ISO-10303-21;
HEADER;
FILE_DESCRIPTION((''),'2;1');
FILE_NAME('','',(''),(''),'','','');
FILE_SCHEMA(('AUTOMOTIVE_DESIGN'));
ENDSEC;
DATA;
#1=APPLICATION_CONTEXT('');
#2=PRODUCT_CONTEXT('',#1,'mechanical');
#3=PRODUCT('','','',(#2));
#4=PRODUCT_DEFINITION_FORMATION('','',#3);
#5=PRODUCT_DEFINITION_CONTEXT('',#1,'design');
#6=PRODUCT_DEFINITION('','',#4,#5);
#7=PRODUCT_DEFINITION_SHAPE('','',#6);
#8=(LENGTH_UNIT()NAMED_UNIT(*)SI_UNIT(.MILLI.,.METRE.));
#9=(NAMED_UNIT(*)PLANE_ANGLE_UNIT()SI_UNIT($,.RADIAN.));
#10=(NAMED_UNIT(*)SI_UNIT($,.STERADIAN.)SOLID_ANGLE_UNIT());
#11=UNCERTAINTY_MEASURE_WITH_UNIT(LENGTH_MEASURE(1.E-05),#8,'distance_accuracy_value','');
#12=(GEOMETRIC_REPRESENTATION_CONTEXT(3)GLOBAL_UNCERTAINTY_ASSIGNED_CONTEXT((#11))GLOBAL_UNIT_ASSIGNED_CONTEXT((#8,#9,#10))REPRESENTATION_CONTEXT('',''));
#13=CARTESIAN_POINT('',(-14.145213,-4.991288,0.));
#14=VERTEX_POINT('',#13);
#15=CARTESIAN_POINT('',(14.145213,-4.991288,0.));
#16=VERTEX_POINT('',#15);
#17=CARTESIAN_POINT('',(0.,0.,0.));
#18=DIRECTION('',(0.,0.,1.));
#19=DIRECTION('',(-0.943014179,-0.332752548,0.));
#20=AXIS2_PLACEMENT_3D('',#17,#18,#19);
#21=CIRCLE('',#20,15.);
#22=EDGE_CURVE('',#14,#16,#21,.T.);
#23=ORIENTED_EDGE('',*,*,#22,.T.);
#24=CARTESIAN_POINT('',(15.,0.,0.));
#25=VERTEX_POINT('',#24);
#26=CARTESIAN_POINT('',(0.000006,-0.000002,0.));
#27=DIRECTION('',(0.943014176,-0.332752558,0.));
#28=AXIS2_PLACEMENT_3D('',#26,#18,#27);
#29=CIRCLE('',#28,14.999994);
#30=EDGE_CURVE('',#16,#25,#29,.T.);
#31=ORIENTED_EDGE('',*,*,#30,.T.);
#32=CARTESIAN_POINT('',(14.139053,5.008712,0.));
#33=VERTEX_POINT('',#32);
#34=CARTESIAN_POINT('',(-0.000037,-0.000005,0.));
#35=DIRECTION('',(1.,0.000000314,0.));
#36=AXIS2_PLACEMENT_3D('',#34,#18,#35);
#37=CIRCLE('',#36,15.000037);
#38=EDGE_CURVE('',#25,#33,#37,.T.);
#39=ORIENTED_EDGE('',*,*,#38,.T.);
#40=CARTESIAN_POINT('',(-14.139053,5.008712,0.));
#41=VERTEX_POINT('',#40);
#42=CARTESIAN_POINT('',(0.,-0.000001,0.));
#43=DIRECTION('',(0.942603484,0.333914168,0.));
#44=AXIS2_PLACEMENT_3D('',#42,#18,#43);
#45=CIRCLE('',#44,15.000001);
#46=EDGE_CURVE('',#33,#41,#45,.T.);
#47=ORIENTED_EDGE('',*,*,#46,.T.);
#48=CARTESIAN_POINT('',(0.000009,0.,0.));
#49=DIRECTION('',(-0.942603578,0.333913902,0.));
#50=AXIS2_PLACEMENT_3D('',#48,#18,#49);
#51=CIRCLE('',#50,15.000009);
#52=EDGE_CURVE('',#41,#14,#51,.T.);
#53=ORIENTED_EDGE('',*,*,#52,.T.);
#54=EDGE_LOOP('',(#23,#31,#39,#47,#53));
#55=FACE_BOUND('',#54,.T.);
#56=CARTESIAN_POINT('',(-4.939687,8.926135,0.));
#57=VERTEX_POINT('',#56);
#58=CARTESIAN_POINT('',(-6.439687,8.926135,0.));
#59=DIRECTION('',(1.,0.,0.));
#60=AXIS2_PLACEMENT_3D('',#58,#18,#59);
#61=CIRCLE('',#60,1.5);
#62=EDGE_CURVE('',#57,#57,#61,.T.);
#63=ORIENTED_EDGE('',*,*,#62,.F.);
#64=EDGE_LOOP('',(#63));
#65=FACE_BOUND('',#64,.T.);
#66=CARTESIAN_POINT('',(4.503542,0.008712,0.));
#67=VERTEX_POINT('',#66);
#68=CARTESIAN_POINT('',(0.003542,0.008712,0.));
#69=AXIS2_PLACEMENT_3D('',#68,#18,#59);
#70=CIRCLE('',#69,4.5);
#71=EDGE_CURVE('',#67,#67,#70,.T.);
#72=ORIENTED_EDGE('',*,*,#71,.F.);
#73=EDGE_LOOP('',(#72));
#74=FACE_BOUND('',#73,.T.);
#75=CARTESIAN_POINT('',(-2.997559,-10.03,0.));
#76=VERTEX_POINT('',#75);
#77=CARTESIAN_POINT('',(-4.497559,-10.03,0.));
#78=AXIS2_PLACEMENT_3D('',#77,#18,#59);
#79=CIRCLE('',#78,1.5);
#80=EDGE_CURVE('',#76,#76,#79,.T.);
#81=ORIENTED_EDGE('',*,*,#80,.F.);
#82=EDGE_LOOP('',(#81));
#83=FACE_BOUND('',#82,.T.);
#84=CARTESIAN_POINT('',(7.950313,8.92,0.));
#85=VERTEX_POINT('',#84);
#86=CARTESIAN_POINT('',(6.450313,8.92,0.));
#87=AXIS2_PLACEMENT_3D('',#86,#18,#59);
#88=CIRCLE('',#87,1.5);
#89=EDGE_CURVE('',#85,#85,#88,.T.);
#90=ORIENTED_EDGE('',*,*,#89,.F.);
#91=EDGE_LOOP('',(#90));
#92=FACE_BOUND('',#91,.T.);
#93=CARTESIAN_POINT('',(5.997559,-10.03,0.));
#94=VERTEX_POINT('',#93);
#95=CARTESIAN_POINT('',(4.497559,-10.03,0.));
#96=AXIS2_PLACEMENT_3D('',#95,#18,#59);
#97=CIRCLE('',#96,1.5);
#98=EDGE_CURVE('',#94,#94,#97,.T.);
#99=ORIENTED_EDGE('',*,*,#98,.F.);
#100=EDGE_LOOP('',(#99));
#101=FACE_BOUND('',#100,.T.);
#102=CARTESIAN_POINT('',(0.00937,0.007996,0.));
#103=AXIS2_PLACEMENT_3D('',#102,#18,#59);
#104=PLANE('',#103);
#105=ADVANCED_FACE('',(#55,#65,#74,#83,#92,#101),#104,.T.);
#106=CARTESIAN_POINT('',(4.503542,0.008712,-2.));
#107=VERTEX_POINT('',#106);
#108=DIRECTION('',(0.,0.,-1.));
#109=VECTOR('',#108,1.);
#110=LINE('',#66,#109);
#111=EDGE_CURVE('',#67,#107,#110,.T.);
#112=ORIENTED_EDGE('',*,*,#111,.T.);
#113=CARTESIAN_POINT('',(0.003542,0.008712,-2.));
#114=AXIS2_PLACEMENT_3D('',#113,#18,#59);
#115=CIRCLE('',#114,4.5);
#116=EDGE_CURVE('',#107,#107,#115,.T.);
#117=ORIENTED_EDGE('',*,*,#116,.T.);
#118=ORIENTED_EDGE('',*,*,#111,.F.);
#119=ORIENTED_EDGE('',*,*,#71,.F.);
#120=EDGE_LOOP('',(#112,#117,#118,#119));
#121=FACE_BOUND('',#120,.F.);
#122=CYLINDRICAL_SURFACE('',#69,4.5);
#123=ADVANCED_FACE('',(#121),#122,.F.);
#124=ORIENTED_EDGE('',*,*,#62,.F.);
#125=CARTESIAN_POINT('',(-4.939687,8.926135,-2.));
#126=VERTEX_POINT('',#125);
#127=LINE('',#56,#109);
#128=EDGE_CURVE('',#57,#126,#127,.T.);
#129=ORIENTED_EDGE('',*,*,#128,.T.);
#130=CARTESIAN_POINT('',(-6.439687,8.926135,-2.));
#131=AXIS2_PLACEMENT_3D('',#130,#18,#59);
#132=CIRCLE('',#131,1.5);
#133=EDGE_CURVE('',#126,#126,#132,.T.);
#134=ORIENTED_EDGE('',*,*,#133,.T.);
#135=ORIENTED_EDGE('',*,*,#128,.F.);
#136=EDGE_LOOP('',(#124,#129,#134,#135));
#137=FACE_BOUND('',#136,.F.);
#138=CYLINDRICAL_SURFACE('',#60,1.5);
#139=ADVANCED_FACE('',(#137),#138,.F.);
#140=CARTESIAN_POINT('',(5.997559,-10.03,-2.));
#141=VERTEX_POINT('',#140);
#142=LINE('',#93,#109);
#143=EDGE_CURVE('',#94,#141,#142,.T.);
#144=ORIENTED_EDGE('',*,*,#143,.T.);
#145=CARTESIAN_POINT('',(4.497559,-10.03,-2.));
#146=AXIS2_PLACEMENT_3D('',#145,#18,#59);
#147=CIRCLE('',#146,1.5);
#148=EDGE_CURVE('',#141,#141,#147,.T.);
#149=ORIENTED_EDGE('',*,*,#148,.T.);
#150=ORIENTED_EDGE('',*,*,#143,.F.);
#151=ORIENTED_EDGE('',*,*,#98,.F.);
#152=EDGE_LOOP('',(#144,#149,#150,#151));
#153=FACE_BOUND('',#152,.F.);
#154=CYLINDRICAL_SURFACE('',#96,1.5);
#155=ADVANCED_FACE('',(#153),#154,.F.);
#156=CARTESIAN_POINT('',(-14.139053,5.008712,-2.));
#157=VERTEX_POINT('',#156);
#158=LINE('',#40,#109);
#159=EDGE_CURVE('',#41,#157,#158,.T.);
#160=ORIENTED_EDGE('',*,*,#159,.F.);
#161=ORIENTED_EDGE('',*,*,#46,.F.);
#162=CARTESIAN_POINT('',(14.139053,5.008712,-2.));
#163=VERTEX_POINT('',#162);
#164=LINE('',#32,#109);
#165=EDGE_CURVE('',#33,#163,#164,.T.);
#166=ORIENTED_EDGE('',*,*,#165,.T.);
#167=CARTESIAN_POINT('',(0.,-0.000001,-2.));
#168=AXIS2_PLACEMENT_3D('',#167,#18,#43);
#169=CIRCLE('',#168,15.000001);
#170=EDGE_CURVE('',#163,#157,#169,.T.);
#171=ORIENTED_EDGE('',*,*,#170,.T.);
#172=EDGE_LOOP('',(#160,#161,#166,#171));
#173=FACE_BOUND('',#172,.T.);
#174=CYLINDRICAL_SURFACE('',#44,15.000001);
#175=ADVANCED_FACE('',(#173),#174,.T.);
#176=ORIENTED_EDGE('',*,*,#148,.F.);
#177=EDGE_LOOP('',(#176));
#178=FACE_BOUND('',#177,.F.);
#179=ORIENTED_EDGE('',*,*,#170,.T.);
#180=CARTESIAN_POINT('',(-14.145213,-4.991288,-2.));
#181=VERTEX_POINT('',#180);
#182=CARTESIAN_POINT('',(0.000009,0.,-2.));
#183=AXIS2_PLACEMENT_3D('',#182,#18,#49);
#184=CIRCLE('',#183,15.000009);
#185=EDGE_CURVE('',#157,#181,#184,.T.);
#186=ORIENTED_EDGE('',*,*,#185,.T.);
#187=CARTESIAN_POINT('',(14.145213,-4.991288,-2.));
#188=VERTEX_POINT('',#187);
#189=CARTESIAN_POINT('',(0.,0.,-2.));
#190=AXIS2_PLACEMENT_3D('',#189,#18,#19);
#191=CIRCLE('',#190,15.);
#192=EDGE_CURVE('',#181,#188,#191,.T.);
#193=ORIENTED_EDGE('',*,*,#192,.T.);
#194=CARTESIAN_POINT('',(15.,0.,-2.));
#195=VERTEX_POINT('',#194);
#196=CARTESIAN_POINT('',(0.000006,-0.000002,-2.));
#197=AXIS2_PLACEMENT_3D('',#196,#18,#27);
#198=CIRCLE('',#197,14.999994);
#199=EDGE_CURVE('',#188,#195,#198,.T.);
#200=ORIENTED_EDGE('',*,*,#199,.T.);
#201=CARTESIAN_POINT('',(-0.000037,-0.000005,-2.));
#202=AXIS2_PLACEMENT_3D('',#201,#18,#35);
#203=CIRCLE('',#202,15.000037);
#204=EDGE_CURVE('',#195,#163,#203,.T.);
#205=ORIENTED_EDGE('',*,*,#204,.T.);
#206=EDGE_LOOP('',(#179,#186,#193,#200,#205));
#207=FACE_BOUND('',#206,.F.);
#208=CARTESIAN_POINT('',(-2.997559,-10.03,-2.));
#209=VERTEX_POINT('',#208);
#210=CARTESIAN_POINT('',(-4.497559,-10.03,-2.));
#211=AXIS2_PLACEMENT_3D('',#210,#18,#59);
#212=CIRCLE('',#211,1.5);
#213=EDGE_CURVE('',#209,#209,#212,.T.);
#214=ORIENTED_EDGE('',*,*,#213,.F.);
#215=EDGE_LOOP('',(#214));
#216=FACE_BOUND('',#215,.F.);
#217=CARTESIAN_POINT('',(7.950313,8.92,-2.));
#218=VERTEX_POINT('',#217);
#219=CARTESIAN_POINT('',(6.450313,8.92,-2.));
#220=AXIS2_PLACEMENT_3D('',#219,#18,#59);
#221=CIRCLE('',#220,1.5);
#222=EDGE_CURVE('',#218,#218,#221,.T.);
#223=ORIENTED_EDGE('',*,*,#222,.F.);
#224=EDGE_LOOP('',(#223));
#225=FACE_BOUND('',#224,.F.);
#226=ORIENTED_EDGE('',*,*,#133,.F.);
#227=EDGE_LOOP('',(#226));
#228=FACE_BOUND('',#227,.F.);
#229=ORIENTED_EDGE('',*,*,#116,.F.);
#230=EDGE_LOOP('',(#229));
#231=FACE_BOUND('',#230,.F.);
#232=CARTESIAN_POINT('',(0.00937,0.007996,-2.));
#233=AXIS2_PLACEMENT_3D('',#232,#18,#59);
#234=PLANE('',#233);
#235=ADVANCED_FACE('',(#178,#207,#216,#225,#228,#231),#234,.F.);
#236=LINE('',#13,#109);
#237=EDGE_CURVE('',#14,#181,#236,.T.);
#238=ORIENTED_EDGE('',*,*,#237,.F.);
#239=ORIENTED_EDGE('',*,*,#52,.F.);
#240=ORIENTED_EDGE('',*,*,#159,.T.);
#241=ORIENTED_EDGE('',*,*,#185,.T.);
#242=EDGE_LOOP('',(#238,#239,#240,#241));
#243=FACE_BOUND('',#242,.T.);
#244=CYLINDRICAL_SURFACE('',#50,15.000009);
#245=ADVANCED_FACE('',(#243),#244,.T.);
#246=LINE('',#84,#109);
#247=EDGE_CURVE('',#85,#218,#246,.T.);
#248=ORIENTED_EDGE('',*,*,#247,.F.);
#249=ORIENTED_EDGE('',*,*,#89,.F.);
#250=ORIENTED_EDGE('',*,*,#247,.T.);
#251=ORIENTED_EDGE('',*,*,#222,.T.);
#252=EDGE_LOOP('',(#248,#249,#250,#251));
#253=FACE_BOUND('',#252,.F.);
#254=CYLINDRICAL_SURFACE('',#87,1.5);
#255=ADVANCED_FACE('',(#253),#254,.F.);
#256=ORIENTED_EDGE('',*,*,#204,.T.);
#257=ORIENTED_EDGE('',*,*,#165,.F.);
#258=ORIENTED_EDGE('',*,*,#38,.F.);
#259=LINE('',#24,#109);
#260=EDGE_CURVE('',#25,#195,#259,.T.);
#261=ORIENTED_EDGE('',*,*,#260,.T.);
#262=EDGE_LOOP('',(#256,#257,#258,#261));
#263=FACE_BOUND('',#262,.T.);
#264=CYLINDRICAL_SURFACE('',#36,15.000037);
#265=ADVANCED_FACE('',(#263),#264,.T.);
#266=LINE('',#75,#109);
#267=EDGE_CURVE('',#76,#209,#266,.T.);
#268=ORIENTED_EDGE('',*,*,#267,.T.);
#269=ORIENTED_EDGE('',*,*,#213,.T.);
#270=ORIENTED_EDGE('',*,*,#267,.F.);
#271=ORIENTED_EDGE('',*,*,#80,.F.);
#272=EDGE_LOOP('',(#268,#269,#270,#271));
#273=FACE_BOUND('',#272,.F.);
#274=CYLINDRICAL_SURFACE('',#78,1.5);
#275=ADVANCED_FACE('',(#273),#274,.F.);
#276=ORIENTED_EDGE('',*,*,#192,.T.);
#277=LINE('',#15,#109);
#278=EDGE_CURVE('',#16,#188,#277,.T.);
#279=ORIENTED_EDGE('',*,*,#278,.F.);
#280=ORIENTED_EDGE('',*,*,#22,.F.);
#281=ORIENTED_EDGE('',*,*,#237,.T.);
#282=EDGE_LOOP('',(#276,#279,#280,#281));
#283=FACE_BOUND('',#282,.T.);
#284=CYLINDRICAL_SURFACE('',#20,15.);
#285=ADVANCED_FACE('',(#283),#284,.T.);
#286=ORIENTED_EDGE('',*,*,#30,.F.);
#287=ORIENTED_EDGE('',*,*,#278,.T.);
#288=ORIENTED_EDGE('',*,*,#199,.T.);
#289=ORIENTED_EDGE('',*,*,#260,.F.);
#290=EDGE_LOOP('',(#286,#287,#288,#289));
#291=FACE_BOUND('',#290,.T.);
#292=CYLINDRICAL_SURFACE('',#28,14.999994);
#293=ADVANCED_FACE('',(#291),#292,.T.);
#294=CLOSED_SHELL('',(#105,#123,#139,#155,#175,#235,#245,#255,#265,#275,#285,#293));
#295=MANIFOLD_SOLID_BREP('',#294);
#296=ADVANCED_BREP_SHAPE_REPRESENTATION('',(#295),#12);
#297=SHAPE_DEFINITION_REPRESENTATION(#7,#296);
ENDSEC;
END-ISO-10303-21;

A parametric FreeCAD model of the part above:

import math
import FreeCAD as App
import Part
import Sketcher
from FreeCAD import Vector

doc = App.newDocument("Part")
body = doc.addObject("PartDesign::Body", "Body")

sketch1 = doc.addObject("Sketcher::SketchObject", "Sketch")
body.addObject(sketch1)
sketch1.AttachmentSupport = (doc.XY_Plane, [""])
sketch1.MapMode = "FlatFace"
sketch1.addGeometry([
    Part.ArcOfCircle(Part.Circle(Vector(0.000006, -0.000002, 0), Vector(0, 0, 1), 14.999994), math.radians(-19.43593), math.radians(0.000007)),
    Part.ArcOfCircle(Part.Circle(Vector(-0.000037, -0.000005, 0), Vector(0, 0, 1), 15.000037), math.radians(0.000018), math.radians(19.50649)),
    Part.ArcOfCircle(Part.Circle(Vector(0, -0.000001, 0), Vector(0, 0, 1), 15.000001), math.radians(19.506523), math.radians(160.493477)),
    Part.ArcOfCircle(Part.Circle(Vector(0.000009, 0, 0), Vector(0, 0, 1), 15.000009), math.radians(160.493494), math.radians(199.435918)),
    Part.ArcOfCircle(Part.Circle(Vector(0, 0, 0), Vector(0, 0, 1), 15), math.radians(-160.564071), math.radians(-19.435929)),
    Part.Circle(Vector(-4.497559, -10.03, 0), Vector(0, 0, 1), 1.5),
    Part.Circle(Vector(4.497559, -10.03, 0), Vector(0, 0, 1), 1.5),
    Part.Circle(Vector(0.003542, 0.008712, 0), Vector(0, 0, 1), 4.5),
    Part.Circle(Vector(-6.439687, 8.926135, 0), Vector(0, 0, 1), 1.5),
    Part.Circle(Vector(6.450313, 8.92, 0), Vector(0, 0, 1), 1.5),
], False)
sketch1.addConstraint([
    Sketcher.Constraint("Coincident", 0, 2, 1, 1),
    Sketcher.Constraint("Coincident", 1, 2, 2, 1),
    Sketcher.Constraint("Coincident", 2, 2, 3, 1),
    Sketcher.Constraint("Coincident", 3, 2, 4, 1),
    Sketcher.Constraint("Coincident", 4, 2, 0, 1),
    Sketcher.Constraint("Coincident", 0, 3, -1, 1),
    Sketcher.Constraint("Coincident", 2, 3, -1, 1),
    Sketcher.Constraint("Coincident", 3, 3, -1, 1),
    Sketcher.Constraint("Coincident", 4, 3, -1, 1),
    Sketcher.Constraint("PointOnObject", 0, 2, -1),
    Sketcher.Constraint("Diameter", 5, 3.0),
    Sketcher.Constraint("Diameter", 6, 3.0),
    Sketcher.Constraint("Diameter", 7, 9.0),
    Sketcher.Constraint("Diameter", 8, 3.0),
    Sketcher.Constraint("Diameter", 9, 3.0),
    Sketcher.Constraint("Radius", 2, 15.000001),
    Sketcher.Constraint("DistanceY", 7, 3, 1, 2, 5.0),
    Sketcher.Constraint("DistanceY", 3, 2, 2, 2, 10.0),
    Sketcher.Constraint("DistanceY", 4, 2, 1, 2, 10.0),
    Sketcher.Constraint("DistanceY", 5, 3, -1, 1, 10.03),
    Sketcher.Constraint("DistanceY", 6, 3, -1, 1, 10.03),
    Sketcher.Constraint("DistanceY", -1, 1, 9, 3, 8.92),
    Sketcher.Constraint("Radius", 1, 15.000037),
    Sketcher.Constraint("DistanceX", 5, 3, -1, 1, 4.497559),
    Sketcher.Constraint("DistanceX", -1, 1, 6, 3, 4.497559),
    Sketcher.Constraint("DistanceX", -1, 1, 7, 3, 0.003542),
    Sketcher.Constraint("DistanceY", -1, 1, 7, 3, 0.008712),
    Sketcher.Constraint("DistanceY", -1, 1, 2, 2, 5.008712),
    Sketcher.Constraint("DistanceX", 8, 3, 7, 3, 6.443229),
    Sketcher.Constraint("DistanceY", 1, 3, 8, 3, 8.92614),
    Sketcher.Constraint("DistanceX", 7, 3, 9, 3, 6.446771),
])
pad1 = doc.addObject("PartDesign::Pad", "Pad")
body.addObject(pad1)
pad1.Profile = sketch1
pad1.Length = 2
pad1.Reversed = True

doc.recompute()
